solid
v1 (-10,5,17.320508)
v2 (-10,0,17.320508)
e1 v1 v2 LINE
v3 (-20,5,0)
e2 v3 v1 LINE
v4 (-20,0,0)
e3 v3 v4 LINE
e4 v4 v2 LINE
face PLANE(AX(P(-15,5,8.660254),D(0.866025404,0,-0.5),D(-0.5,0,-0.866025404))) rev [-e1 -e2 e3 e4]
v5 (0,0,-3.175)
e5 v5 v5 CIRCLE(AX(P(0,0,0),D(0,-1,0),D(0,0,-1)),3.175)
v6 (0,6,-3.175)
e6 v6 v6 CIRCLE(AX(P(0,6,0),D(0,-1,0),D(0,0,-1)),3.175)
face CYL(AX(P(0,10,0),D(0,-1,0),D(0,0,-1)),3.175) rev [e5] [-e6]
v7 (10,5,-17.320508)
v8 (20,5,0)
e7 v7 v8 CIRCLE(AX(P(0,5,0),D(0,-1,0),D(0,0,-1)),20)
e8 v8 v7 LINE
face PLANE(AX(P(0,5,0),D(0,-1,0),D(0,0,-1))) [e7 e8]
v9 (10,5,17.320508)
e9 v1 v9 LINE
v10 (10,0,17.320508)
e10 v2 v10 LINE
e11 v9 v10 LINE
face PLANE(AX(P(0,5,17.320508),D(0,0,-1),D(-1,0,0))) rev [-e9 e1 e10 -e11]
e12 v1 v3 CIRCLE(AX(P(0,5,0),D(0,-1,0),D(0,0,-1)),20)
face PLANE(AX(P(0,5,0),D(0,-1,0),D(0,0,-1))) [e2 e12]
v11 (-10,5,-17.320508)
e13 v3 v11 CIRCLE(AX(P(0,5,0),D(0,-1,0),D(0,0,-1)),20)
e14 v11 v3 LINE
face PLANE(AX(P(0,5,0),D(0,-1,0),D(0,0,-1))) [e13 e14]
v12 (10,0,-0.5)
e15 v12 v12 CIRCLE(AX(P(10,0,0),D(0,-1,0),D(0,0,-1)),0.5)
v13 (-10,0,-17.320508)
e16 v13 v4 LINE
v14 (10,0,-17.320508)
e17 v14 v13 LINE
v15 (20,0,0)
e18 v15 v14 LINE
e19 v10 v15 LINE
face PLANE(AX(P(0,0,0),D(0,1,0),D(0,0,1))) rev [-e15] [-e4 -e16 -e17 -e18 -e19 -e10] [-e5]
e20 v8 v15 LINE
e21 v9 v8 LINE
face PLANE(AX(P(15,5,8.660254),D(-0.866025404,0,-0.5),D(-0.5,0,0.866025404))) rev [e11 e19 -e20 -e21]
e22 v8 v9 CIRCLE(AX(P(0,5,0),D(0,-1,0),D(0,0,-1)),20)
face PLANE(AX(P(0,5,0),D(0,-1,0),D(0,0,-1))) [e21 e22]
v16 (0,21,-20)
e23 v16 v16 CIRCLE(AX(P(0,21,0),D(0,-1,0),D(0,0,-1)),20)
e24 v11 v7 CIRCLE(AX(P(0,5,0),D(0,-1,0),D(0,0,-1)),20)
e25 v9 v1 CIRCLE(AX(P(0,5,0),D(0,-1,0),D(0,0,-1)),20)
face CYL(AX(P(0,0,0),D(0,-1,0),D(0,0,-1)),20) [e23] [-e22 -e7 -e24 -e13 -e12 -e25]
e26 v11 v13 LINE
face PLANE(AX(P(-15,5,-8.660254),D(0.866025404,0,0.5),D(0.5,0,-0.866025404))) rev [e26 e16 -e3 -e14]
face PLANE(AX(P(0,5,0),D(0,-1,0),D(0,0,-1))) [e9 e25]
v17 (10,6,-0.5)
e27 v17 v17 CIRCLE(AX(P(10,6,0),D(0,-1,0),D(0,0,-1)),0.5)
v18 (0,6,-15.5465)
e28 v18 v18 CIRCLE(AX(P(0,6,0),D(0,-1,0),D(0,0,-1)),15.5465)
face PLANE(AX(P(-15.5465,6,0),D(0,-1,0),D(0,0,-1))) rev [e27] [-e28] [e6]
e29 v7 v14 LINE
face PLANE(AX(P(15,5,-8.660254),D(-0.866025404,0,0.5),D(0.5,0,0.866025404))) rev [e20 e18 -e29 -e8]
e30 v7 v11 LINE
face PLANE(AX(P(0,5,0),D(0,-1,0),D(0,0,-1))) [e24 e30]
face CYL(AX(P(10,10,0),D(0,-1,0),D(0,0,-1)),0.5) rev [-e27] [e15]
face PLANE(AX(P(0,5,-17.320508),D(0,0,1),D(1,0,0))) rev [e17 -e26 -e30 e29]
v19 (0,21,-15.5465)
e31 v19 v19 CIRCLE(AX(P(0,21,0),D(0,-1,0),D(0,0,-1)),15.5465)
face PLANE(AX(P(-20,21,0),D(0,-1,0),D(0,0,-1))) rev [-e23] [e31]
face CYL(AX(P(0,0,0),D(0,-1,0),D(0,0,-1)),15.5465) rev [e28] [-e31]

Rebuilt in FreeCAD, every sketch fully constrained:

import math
import FreeCAD as App
import Part
import Sketcher

V = App.Vector

doc = App.newDocument("Part")
body = doc.addObject("PartDesign::Body", "Body")

# Sketch on XY plane
sketch1 = doc.addObject("Sketcher::SketchObject", "Sketch")
body.addObject(sketch1)
sketch1.AttachmentSupport = (doc.XY_Plane, [""])
sketch1.MapMode = "FlatFace"
sketch1.addGeometry([
    Part.LineSegment(V(-20, 0, 0), V(0, 0, 0)),  # 0
    Part.LineSegment(V(0, 0, 0), V(0, 6, 0)),  # 1
    Part.LineSegment(V(0, 6, 0), V(-15.5, 6, 0)),  # 2
    Part.LineSegment(V(-15.5, 6, 0), V(-15.5, 21, 0)),  # 3
    Part.LineSegment(V(-15.5, 21, 0), V(-20, 21, 0)),  # 4
    Part.LineSegment(V(-20, 21, 0), V(-20, 0, 0)),  # 5
], False)
sketch1.addConstraint([
    Sketcher.Constraint("Coincident", 0, 2, 1, 1),
    Sketcher.Constraint("Coincident", 1, 2, 2, 1),
    Sketcher.Constraint("Coincident", 2, 2, 3, 1),
    Sketcher.Constraint("Coincident", 3, 2, 4, 1),
    Sketcher.Constraint("Coincident", 4, 2, 5, 1),
    Sketcher.Constraint("Coincident", 5, 2, 0, 1),
    Sketcher.Constraint("Horizontal", 0),
    Sketcher.Constraint("Vertical", 1),
    Sketcher.Constraint("Horizontal", 2),
    Sketcher.Constraint("Vertical", 3),
    Sketcher.Constraint("Horizontal", 4),
    Sketcher.Constraint("Vertical", 5),
    Sketcher.Constraint("Coincident", 0, 2, -1, 1),
    Sketcher.Constraint("DistanceX", 0, 1, 0, 2, 20.0),
    Sketcher.Constraint("DistanceY", 1, 1, 1, 2, 6.0),
    Sketcher.Constraint("DistanceY", 3, 1, 3, 2, 15.0),
    Sketcher.Constraint("DistanceX", 2, 2, 2, 1, 15.5465),
])
revolution = doc.addObject("PartDesign::Revolution", "Revolution")
body.addObject(revolution)
revolution.Profile = sketch1
revolution.ReferenceAxis = (sketch1, ["V_Axis"])
revolution.Angle = 360

# Sketch on XZ plane
sketch2 = doc.addObject("Sketcher::SketchObject", "Sketch001")
body.addObject(sketch2)
sketch2.AttachmentSupport = (doc.XZ_Plane, [""])
sketch2.MapMode = "FlatFace"
sketch2.addGeometry([
    Part.Circle(V(0, 0, 0), V(0, 0, 1), 3.2),
    Part.Circle(V(10, 0, 0), V(0, 0, 1), 0.5),
], False)
sketch2.addConstraint([
    Sketcher.Constraint("Coincident", 0, 3, -1, 1),
    Sketcher.Constraint("PointOnObject", 1, 3, -1),
    Sketcher.Constraint("Diameter", 1, 1.0),
    Sketcher.Constraint("Diameter", 0, 6.35),
    Sketcher.Constraint("DistanceX", -1, 1, 1, 3, 10.0),
])
pocket1 = doc.addObject("PartDesign::Pocket", "Pocket")
body.addObject(pocket1)
pocket1.Profile = sketch2
pocket1.Length = 10

# Sketch on XZ plane
sketch3 = doc.addObject("Sketcher::SketchObject", "Sketch002")
body.addObject(sketch3)
sketch3.AttachmentSupport = (doc.XZ_Plane, [""])
sketch3.MapMode = "FlatFace"
sketch3.AttachmentOffset = App.Placement(V(0, 0, -5), App.Rotation())
sketch3.addGeometry([
    Part.LineSegment(V(10, -17, 0), V(-10, -17, 0)),  # 0
    Part.ArcOfCircle(Part.Circle(V(0, 0, 0), V(0, 0, 1), 20), math.radians(-120), math.radians(-60)),  # 1
    Part.ArcOfCircle(Part.Circle(V(0, 0, 0), V(0, 0, 1), 20), math.radians(180), math.radians(240)),  # 2
    Part.LineSegment(V(-10, -17, 0), V(-20, 0, 0)),  # 3
    Part.ArcOfCircle(Part.Circle(V(0, 0, 0), V(0, 0, 1), 20), math.radians(120), math.radians(180)),  # 4
    Part.LineSegment(V(-20, 0, 0), V(-10, 17, 0)),  # 5
    Part.ArcOfCircle(Part.Circle(V(0, 0, 0), V(0, 0, 1), 20), math.radians(60), math.radians(120)),  # 6
    Part.LineSegment(V(-10, 17, 0), V(10, 17, 0)),  # 7
    Part.LineSegment(V(10, 17, 0), V(20, 0, 0)),  # 8
    Part.ArcOfCircle(Part.Circle(V(0, 0, 0), V(0, 0, 1), 20), math.radians(0), math.radians(60)),  # 9
    Part.LineSegment(V(20, 0, 0), V(10, -17, 0)),  # 10
    Part.ArcOfCircle(Part.Circle(V(0, 0, 0), V(0, 0, 1), 20), math.radians(-60), math.radians(0)),  # 11
], False)
sketch3.addConstraint([
    Sketcher.Constraint("Coincident", 0, 1, 1, 2),
    Sketcher.Constraint("Coincident", 1, 1, 0, 2),
    Sketcher.Constraint("Coincident", 2, 1, 3, 2),
    Sketcher.Constraint("Coincident", 3, 1, 2, 2),
    Sketcher.Constraint("Coincident", 4, 1, 5, 2),
    Sketcher.Constraint("Coincident", 5, 1, 4, 2),
    Sketcher.Constraint("Coincident", 6, 1, 7, 2),
    Sketcher.Constraint("Coincident", 7, 1, 6, 2),
    Sketcher.Constraint("Coincident", 8, 1, 9, 2),
    Sketcher.Constraint("Coincident", 9, 1, 8, 2),
    Sketcher.Constraint("Coincident", 10, 1, 11, 2),
    Sketcher.Constraint("Coincident", 11, 1, 10, 2),
    Sketcher.Constraint("Horizontal", 0),
    Sketcher.Constraint("Horizontal", 7),
    Sketcher.Constraint("Coincident", 1, 3, -1, 1),
    Sketcher.Constraint("Coincident", 2, 3, -1, 1),
    Sketcher.Constraint("Coincident", 4, 3, -1, 1),
    Sketcher.Constraint("Coincident", 6, 3, -1, 1),
    Sketcher.Constraint("Coincident", 9, 3, -1, 1),
    Sketcher.Constraint("Coincident", 11, 3, -1, 1),
    Sketcher.Constraint("Coincident", 3, 1, 1, 1),
    Sketcher.Constraint("Coincident", 5, 1, 2, 1),
    Sketcher.Constraint("Coincident", 7, 1, 4, 1),
    Sketcher.Constraint("Coincident", 8, 1, 6, 1),
    Sketcher.Constraint("Coincident", 10, 1, 9, 1),
    Sketcher.Constraint("PointOnObject", 2, 1, -1),
    Sketcher.Constraint("PointOnObject", 9, 1, -1),
    Sketcher.Constraint("Parallel", 3, 8),
    Sketcher.Constraint("Parallel", 5, 10),
    Sketcher.Constraint("Radius", 1, 20.0),
    Sketcher.Constraint("DistanceX", 0, 2, 0, 1, 20.0),
])
pocket2 = doc.addObject("PartDesign::Pocket", "Pocket001")
body.addObject(pocket2)
pocket2.Profile = sketch3
pocket2.Length = 5
pocket2.Reversed = True

doc.recompute()
